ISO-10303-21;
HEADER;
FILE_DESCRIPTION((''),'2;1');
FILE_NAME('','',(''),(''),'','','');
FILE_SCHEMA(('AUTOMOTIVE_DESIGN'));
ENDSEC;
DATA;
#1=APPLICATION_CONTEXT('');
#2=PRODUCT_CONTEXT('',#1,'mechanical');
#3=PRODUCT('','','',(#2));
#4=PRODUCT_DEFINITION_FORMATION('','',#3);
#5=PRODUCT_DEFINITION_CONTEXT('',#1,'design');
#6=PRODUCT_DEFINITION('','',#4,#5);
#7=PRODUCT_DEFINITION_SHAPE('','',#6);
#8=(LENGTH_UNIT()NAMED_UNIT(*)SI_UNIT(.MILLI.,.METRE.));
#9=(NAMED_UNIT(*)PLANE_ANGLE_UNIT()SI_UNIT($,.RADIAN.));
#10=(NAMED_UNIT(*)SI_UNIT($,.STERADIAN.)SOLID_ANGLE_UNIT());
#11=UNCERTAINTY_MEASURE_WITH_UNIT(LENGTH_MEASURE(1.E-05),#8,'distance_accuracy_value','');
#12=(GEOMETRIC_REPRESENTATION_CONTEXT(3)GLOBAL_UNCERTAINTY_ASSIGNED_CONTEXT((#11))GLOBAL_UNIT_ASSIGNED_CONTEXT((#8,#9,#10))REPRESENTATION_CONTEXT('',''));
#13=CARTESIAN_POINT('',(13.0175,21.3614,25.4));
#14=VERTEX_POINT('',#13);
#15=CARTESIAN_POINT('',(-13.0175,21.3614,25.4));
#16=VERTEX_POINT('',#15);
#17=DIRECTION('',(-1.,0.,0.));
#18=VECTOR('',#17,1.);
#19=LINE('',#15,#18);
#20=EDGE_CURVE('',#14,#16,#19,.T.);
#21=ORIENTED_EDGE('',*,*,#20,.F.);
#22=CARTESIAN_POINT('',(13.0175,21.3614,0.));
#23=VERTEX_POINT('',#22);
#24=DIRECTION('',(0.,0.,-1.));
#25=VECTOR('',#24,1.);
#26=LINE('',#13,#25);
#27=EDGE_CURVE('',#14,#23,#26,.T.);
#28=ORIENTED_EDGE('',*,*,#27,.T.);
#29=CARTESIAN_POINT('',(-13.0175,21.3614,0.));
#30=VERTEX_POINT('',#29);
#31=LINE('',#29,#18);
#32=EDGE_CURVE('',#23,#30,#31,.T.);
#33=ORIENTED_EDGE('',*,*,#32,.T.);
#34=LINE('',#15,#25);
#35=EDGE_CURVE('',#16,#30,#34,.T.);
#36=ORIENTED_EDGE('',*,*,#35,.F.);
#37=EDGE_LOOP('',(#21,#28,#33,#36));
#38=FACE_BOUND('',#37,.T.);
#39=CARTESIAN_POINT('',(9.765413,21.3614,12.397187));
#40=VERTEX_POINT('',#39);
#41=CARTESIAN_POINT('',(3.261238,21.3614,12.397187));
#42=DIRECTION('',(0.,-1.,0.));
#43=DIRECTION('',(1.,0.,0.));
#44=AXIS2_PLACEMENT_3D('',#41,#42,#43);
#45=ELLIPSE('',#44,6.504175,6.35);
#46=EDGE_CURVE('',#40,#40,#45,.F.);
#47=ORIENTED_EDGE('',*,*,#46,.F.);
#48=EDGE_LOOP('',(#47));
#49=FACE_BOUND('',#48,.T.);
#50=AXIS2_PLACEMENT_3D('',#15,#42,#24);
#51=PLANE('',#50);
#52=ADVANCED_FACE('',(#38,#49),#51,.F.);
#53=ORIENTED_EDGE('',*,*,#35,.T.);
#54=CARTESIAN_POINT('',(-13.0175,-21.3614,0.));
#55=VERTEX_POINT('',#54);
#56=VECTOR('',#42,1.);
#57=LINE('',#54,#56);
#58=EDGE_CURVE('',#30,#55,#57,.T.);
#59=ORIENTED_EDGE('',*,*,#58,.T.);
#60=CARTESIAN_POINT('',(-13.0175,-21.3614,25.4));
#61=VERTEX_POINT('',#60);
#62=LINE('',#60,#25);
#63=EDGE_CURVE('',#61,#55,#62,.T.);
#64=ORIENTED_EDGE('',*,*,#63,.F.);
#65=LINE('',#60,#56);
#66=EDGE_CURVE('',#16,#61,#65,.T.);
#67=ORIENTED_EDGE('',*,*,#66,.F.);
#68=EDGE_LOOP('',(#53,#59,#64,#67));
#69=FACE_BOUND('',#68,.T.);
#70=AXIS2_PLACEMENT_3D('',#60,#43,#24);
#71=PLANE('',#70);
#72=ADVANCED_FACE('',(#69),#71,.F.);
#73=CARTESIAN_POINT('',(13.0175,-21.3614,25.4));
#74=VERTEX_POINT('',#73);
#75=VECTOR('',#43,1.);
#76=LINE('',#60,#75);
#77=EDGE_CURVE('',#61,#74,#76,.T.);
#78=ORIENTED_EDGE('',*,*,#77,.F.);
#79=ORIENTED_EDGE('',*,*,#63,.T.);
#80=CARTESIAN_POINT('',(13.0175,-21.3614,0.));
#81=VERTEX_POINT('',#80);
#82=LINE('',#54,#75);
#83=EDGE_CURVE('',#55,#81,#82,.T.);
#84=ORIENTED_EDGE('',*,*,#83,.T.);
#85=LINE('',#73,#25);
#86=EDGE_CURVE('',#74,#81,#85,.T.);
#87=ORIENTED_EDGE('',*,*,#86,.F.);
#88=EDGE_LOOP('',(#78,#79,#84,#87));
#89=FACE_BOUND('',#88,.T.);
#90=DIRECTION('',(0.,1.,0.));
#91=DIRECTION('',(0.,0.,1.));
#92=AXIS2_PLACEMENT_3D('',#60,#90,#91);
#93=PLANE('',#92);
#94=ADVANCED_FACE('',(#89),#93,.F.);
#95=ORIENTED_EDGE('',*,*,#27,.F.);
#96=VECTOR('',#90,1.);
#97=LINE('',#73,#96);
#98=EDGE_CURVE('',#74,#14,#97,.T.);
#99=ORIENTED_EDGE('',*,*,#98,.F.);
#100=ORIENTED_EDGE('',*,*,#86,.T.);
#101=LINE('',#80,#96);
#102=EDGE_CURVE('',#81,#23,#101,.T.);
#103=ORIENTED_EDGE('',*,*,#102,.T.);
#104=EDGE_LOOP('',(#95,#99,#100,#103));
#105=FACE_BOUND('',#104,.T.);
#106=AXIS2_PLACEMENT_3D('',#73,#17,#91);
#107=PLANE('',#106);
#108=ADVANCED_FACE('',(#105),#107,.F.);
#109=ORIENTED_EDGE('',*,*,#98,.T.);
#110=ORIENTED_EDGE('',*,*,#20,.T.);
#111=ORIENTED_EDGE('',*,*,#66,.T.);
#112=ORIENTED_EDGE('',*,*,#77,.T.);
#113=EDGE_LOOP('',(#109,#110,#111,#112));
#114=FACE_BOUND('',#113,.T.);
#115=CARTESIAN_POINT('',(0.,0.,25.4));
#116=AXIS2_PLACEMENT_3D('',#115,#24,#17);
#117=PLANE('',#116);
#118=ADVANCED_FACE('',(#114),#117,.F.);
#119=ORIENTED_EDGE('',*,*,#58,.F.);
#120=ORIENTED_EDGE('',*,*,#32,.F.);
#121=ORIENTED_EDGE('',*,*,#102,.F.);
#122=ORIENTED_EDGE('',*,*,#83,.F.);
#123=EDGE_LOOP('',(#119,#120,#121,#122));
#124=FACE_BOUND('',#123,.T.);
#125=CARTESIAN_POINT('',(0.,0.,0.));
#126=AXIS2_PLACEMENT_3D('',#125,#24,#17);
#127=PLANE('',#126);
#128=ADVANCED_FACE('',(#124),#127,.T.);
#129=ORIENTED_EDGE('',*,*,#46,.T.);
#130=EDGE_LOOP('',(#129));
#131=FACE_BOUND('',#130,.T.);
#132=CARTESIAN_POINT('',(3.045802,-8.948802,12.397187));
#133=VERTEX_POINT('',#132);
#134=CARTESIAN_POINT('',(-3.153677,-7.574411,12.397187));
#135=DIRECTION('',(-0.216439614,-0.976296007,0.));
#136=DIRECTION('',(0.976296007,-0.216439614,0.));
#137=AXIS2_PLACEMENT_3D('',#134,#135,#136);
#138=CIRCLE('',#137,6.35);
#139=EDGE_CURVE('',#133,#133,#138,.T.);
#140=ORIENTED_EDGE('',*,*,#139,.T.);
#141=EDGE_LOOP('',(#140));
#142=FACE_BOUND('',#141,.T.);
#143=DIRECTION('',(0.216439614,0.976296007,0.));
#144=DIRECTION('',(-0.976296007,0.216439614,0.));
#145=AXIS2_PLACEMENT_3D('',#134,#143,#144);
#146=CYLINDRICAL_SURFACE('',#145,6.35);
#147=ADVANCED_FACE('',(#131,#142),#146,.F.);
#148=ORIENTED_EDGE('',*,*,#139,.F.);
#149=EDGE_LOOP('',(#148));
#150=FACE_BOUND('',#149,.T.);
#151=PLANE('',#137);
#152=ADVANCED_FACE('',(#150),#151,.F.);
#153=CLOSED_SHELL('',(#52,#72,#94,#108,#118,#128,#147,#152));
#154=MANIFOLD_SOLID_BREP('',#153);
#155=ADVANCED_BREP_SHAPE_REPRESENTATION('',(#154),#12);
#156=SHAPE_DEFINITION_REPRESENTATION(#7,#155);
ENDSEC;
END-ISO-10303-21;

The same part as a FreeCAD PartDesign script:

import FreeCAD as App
import Part
import Sketcher

V = App.Vector
Q = App.Units.Quantity

doc = App.newDocument("Part")
params = doc.addObject("Spreadsheet::Sheet", "Params")
for row, (alias, value) in enumerate([
    ("sketch1_width", "1.025 in"),
    ("sketch1_height", "1.682 in"),
    ("pad1_length", "1 in"),
    ("sketch2_diameter", "0.5 in"),
    ("pocket1_length", "1.25 in"),
], start=1):
    params.set(f"A{row}", alias)
    params.set(f"B{row}", "=" + value)
    params.setAlias(f"B{row}", alias)

body = doc.addObject("PartDesign::Body", "Body")

# Sketch on XY plane
sketch1 = body.newObject("Sketcher::SketchObject", "Sketch")
sketch1.AttachmentSupport = (doc.getObject("XY_Plane"), [""])
sketch1.MapMode = "FlatFace"
sketch1.addGeometry([
    Part.LineSegment(V(-13, 21, 0), V(-13, -21, 0)),
    Part.LineSegment(V(-13, -21, 0), V(13, -21, 0)),
    Part.LineSegment(V(13, -21, 0), V(13, 21, 0)),
    Part.LineSegment(V(13, 21, 0), V(-13, 21, 0)),
], False)
sketch1.addConstraint([
    Sketcher.Constraint("Coincident", 0, 2, 1, 1),
    Sketcher.Constraint("Coincident", 1, 2, 2, 1),
    Sketcher.Constraint("Coincident", 2, 2, 3, 1),
    Sketcher.Constraint("Coincident", 3, 2, 0, 1),
    Sketcher.Constraint("Vertical", 0),
    Sketcher.Constraint("Horizontal", 1),
    Sketcher.Constraint("Vertical", 2),
    Sketcher.Constraint("Horizontal", 3),
    Sketcher.Constraint("Symmetric", 0, 2, 2, 2, -1, 1),
    Sketcher.Constraint("DistanceX", 1, 1, 1, 2, Q("1.025 in")),
    Sketcher.Constraint("DistanceY", 0, 2, 0, 1, Q("1.682 in")),
])
sketch1.setExpression("Constraints[9]", "Params.sketch1_width")
sketch1.setExpression("Constraints[10]", "Params.sketch1_height")
pad1 = body.newObject("PartDesign::Pad", "Pad")
pad1.Profile = sketch1
pad1.setExpression("Length", "Params.pad1_length")

# Sketch on an angled plane
sketch2 = body.newObject("Sketcher::SketchObject", "Sketch001")
sketch2.Placement = App.Placement(V(5.123678, 23.111418, 0), App.Rotation(V(-0.976296007, 0.216439614, 0), V(0, 0, -1), V(-0.216439614, -0.976296007, 0), "ZXY"))
sketch2.addGeometry(Part.Circle(V(1, -12, 0), V(0, 0, 1), 6), False)
sketch2.addConstraint([
    Sketcher.Constraint("Diameter", 0, Q("0.5 in")),
    Sketcher.Constraint("DistanceX", -1, 1, 0, 3, Q("1.43952 mm")),
    Sketcher.Constraint("DistanceY", 0, 3, -1, 1, Q("12.397187 mm")),
])
sketch2.setExpression("Constraints[0]", "Params.sketch2_diameter")
pocket1 = body.newObject("PartDesign::Pocket", "Pocket")
pocket1.Profile = sketch2
pocket1.setExpression("Length", "Params.pocket1_length")
pocket1.Reversed = True

doc.recompute()
